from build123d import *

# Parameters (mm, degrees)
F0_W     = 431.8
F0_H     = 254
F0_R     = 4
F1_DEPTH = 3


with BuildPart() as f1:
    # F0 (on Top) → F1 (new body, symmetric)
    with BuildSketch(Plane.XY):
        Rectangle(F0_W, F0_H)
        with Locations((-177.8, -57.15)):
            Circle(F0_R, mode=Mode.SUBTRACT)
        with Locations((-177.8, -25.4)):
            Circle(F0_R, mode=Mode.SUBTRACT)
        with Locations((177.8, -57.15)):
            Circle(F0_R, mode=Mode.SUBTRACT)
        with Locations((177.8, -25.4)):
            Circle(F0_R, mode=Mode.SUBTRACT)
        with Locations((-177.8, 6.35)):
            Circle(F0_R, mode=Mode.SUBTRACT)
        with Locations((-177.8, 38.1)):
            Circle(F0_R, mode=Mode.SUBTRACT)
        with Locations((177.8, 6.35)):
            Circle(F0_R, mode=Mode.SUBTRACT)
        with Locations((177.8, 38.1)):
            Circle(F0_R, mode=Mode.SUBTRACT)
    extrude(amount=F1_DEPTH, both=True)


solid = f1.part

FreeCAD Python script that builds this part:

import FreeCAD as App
import Part
import Sketcher

V = App.Vector


def add_polygon(sketch, points):
    """Adds a closed chain of lines whose ends are joined by coincident constraints."""
    first, n = sketch.GeometryCount, len(points)
    for a, b in zip(points, points[1:] + points[:1]):
        sketch.addGeometry(Part.LineSegment(App.Vector(*a, 0), App.Vector(*b, 0)), False)
    for i in range(n):
        sketch.addConstraint(Sketcher.Constraint("Coincident", first + i, 2, first + (i + 1) % n, 1))

doc = App.newDocument("Part")
params = doc.addObject("Spreadsheet::Sheet", "Params")
for row, (alias, value) in enumerate([
    ("sketch1_diameter", "8 mm"),
    ("sketch1_height", "254 mm"),
    ("sketch1_width", "431.8 mm"),
    ("pad1_length", "6 mm"),
], start=1):
    params.set(f"A{row}", alias)
    params.set(f"B{row}", "=" + value)
    params.setAlias(f"B{row}", alias)

body = doc.addObject("PartDesign::Body", "Body")

sketch1 = body.newObject("Sketcher::SketchObject", "Sketch")
sketch1.AttachmentSupport = (doc.getObject("XY_Plane"), [""])
sketch1.MapMode = "FlatFace"
add_polygon(sketch1, [(-215.9, 127), (-215.9, -127), (215.9, -127), (215.9, 127)])
sketch1.addGeometry(Part.Circle(V(-177.8, -57.1, 0), V(0, 0, 1), 4), False)
sketch1.addGeometry(Part.Circle(V(-177.8, -25.4, 0), V(0, 0, 1), 4), False)
sketch1.addGeometry(Part.Circle(V(177.8, -57.1, 0), V(0, 0, 1), 4), False)
sketch1.addGeometry(Part.Circle(V(177.8, -25.4, 0), V(0, 0, 1), 4), False)
sketch1.addGeometry(Part.Circle(V(-177.8, 6.3, 0), V(0, 0, 1), 4), False)
sketch1.addGeometry(Part.Circle(V(-177.8, 38.1, 0), V(0, 0, 1), 4), False)
sketch1.addGeometry(Part.Circle(V(177.8, 6.3, 0), V(0, 0, 1), 4), False)
sketch1.addGeometry(Part.Circle(V(177.8, 38.1, 0), V(0, 0, 1), 4), False)
sketch1.addConstraint([
    Sketcher.Constraint("Vertical", 0),
    Sketcher.Constraint("Horizontal", 1),
    Sketcher.Constraint("Vertical", 2),
    Sketcher.Constraint("Horizontal", 3),
    Sketcher.Constraint("Equal", 4, 5),
    Sketcher.Constraint("Equal", 5, 6),
    Sketcher.Constraint("Equal", 6, 7),
    Sketcher.Constraint("Equal", 7, 8),
    Sketcher.Constraint("Equal", 8, 9),
    Sketcher.Constraint("Equal", 9, 10),
    Sketcher.Constraint("Equal", 10, 11),
    Sketcher.Constraint("Symmetric", 0, 2, 2, 2, -1, 1),
    Sketcher.Constraint("Symmetric", 4, 3, 6, 3, -2),
    Sketcher.Constraint("Symmetric", 5, 3, 7, 3, -2),
    Sketcher.Constraint("Symmetric", 8, 3, 10, 3, -2),
    Sketcher.Constraint("Symmetric", 9, 3, 11, 3, -2),
    Sketcher.Constraint("Vertical", 4, 3, 5, 3),
    Sketcher.Constraint("Vertical", 5, 3, 8, 3),
    Sketcher.Constraint("Vertical", 8, 3, 9, 3),
    Sketcher.Constraint("Diameter", 4, 8.0),
    Sketcher.Constraint("DistanceY", 0, 2, 0, 1, 254.0),
    Sketcher.Constraint("DistanceX", 1, 1, 1, 2, 431.8),
    Sketcher.Constraint("DistanceX", 4, 3, -1, 1, 177.8),
    Sketcher.Constraint("DistanceY", 5, 3, -1, 1, 25.4),
    Sketcher.Constraint("DistanceY", -1, 1, 9, 3, 38.1),
    Sketcher.Constraint("DistanceY", 4, 3, 8, 3, 63.5),
    Sketcher.Constraint("DistanceY", 4, 3, -1, 1, 57.15),
])
sketch1.setExpression("Constraints[23]", "Params.sketch1_diameter")
sketch1.setExpression("Constraints[24]", "Params.sketch1_height")
sketch1.setExpression("Constraints[25]", "Params.sketch1_width")
pad1 = body.newObject("PartDesign::Pad", "Pad")
pad1.Profile = sketch1
pad1.setExpression("Length", "Params.pad1_length")
pad1.Midplane = True

doc.recompute()
